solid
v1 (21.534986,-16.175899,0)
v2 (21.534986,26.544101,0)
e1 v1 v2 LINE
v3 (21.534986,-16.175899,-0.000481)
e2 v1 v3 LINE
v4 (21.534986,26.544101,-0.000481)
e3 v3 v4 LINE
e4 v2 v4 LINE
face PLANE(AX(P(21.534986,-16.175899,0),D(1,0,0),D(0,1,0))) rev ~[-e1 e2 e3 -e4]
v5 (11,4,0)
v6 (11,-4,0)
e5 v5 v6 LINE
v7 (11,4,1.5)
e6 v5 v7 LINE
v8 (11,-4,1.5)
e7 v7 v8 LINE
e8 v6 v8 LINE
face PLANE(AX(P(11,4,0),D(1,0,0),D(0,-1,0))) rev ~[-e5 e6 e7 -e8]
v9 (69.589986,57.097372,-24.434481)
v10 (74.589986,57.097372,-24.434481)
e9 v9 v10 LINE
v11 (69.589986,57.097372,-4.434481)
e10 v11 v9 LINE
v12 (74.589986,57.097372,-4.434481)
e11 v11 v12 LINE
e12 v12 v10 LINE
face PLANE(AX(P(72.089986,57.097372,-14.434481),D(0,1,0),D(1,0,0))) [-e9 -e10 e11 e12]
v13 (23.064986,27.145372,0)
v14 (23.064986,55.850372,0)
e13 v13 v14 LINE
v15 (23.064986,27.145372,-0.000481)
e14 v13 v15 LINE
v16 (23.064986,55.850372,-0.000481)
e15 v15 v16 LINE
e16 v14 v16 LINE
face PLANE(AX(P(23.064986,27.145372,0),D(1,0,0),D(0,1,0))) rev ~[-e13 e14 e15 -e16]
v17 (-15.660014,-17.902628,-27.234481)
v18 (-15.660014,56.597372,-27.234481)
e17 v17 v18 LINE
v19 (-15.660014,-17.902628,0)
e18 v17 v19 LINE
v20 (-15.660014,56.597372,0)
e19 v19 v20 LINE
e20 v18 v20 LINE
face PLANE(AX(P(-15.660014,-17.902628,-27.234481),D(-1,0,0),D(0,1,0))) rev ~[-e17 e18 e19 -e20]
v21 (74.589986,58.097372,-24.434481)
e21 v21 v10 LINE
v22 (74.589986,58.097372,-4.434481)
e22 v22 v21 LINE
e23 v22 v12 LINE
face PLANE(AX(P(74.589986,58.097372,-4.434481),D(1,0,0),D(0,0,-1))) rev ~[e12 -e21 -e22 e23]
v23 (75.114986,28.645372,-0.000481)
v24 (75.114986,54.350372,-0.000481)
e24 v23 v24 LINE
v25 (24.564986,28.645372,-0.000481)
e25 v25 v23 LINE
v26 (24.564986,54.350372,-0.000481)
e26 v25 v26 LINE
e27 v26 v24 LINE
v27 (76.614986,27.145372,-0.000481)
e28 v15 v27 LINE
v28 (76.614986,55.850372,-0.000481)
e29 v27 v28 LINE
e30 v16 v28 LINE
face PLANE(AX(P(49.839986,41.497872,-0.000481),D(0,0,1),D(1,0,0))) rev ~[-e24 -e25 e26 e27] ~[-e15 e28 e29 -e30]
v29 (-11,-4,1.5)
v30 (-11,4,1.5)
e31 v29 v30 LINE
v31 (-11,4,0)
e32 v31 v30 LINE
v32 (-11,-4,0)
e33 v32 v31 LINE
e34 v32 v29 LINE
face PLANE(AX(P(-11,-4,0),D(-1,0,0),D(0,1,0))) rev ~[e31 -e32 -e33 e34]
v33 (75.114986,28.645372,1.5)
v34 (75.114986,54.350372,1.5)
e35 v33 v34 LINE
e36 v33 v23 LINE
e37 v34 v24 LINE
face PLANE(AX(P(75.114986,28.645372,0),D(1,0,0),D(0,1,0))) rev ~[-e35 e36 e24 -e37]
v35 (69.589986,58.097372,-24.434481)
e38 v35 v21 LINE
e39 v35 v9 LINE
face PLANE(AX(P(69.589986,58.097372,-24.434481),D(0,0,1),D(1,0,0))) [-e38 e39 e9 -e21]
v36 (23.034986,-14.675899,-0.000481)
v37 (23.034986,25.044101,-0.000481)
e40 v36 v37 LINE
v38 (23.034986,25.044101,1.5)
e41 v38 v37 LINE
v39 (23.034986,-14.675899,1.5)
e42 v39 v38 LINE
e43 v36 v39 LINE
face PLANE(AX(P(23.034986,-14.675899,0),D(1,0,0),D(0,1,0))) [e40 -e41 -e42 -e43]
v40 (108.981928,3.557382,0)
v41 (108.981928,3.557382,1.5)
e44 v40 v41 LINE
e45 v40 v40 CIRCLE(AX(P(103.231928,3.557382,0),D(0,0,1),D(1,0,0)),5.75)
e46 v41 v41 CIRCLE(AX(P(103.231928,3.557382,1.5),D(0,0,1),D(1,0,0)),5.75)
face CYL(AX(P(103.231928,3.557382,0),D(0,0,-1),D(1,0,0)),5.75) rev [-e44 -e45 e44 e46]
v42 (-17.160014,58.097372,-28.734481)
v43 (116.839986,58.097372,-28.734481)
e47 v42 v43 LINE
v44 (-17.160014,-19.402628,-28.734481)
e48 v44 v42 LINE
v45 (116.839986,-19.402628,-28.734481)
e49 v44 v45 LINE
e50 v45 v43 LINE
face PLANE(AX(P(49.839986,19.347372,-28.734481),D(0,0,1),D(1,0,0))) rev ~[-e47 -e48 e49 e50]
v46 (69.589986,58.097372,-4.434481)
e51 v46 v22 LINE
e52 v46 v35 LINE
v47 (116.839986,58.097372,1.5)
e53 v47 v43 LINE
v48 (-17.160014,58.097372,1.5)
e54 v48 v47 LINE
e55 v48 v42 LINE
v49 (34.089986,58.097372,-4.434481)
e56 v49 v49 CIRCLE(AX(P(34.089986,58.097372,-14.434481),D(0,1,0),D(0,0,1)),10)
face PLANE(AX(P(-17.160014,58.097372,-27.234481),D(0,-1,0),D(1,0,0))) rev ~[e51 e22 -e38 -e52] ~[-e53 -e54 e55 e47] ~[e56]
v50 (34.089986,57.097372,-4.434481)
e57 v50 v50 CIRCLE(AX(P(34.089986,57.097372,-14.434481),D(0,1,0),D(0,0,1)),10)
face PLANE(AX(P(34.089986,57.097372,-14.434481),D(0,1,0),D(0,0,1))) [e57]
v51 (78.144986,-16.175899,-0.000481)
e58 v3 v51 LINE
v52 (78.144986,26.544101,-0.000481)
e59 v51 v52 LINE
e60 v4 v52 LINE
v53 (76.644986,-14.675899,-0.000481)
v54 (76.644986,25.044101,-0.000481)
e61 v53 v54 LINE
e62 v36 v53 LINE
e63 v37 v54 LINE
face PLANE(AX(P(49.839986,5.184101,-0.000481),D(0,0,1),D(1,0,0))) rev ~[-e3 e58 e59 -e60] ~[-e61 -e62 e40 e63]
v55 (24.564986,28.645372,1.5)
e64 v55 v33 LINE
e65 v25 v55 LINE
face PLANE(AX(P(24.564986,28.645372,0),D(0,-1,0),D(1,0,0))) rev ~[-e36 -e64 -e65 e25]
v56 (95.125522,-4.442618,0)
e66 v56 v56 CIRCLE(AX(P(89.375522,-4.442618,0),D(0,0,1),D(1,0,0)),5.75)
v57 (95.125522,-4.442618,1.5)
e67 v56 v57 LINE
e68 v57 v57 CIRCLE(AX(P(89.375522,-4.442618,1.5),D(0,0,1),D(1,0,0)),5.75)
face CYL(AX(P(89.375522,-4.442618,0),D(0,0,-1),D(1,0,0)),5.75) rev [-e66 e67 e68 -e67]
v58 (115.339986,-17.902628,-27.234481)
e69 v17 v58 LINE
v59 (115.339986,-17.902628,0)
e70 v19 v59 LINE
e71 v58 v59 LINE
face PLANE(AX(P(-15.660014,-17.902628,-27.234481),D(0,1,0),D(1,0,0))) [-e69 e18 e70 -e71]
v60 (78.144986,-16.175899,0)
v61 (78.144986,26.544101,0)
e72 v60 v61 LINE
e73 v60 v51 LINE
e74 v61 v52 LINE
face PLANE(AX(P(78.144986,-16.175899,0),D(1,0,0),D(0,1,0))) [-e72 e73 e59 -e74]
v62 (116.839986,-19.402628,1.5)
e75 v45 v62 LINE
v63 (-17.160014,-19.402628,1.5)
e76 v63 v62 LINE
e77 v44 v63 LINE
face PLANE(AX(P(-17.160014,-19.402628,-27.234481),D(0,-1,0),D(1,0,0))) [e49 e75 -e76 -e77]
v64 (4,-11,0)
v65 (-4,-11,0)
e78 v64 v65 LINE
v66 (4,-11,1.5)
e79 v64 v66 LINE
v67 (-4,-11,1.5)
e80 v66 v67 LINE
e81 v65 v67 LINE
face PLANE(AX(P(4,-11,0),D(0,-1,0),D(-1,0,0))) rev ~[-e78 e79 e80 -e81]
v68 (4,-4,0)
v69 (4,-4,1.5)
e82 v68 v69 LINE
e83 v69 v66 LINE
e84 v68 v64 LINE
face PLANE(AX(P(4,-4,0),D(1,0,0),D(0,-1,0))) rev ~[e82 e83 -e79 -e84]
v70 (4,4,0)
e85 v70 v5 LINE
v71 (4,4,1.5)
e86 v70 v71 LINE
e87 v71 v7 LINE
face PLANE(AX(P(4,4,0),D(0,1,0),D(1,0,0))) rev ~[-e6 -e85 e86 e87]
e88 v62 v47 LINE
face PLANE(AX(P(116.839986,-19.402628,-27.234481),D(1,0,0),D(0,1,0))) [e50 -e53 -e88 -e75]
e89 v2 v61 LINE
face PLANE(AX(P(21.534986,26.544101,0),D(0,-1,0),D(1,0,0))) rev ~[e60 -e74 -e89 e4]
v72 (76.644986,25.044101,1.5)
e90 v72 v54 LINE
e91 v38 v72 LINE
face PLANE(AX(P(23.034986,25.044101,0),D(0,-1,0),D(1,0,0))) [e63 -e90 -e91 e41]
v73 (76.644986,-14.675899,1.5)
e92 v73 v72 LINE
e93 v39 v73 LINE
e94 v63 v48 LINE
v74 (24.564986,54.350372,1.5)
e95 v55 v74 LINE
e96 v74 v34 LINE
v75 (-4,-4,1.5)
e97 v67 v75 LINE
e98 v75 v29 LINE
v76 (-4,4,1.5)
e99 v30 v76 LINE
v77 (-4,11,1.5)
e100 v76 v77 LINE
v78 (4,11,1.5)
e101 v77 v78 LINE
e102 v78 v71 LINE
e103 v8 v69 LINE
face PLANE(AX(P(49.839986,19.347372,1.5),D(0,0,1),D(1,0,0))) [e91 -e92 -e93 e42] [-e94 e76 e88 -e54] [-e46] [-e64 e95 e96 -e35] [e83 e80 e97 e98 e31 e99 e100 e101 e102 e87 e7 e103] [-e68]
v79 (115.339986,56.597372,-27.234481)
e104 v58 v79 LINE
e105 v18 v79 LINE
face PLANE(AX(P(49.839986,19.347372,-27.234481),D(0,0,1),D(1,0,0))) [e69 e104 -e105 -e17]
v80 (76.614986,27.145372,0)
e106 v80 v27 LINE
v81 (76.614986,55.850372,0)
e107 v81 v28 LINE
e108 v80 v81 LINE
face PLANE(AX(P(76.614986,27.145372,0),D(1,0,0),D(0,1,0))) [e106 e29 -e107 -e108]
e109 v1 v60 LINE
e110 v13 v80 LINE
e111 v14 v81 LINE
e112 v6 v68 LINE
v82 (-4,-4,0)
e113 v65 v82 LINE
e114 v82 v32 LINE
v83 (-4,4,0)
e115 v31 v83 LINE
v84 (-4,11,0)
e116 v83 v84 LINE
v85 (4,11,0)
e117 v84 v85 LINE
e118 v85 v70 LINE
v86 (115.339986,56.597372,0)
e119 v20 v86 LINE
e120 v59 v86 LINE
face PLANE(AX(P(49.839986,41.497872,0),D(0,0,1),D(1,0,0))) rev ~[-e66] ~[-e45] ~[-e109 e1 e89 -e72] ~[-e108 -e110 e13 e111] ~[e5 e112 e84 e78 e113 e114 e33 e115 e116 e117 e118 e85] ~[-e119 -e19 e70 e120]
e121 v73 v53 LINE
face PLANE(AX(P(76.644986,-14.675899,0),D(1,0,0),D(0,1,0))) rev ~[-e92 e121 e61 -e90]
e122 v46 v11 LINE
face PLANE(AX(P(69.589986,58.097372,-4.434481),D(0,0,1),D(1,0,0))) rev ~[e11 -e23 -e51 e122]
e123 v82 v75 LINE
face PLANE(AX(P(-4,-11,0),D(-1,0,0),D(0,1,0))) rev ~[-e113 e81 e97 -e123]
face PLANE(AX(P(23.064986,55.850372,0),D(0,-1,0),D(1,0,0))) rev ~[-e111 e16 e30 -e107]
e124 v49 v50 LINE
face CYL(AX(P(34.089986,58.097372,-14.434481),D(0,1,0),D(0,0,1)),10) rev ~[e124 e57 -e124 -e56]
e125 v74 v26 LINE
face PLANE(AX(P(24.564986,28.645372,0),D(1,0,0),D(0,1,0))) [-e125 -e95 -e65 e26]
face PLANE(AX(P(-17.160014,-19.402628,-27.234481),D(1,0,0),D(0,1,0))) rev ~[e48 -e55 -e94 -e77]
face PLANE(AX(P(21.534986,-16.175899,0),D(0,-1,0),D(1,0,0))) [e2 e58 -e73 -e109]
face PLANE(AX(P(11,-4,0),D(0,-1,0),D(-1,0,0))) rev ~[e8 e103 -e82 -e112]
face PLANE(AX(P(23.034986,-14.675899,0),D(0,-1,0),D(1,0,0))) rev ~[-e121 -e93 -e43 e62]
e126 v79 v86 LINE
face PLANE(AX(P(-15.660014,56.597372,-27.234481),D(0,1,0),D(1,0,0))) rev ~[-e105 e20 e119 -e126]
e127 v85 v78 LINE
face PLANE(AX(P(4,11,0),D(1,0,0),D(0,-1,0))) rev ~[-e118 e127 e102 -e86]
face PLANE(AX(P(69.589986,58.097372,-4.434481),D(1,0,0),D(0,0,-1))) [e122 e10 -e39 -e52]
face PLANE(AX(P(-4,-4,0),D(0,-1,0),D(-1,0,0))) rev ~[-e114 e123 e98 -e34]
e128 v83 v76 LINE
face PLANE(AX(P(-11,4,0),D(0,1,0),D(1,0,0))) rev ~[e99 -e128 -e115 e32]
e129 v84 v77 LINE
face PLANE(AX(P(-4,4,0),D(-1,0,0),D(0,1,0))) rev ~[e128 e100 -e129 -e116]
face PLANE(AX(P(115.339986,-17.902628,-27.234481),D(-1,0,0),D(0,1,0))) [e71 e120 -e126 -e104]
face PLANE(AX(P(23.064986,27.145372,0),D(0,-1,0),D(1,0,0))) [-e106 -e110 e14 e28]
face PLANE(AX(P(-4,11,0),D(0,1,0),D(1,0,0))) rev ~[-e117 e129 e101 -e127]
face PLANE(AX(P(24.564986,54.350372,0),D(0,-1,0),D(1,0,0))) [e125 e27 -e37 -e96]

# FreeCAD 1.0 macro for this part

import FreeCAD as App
import Part
import Sketcher

V = App.Vector
Q = App.Units.Quantity


def add_polygon(sketch, points):
    """Adds a closed chain of lines whose ends are joined by coincident constraints."""
    first, n = sketch.GeometryCount, len(points)
    for a, b in zip(points, points[1:] + points[:1]):
        sketch.addGeometry(Part.LineSegment(App.Vector(*a, 0), App.Vector(*b, 0)), False)
    for i in range(n):
        sketch.addConstraint(Sketcher.Constraint("Coincident", first + i, 2, first + (i + 1) % n, 1))

doc = App.newDocument("Part")
body = doc.addObject("PartDesign::Body", "Body")

# Sketch on XY plane
sketch1 = doc.addObject("Sketcher::SketchObject", "Sketch")
body.addObject(sketch1)
sketch1.AttachmentSupport = (doc.XY_Plane, [""])
sketch1.MapMode = "FlatFace"
add_polygon(sketch1, [(-16, 57), (-16, -18), (115, -18), (115, 57)])  # lines 0-3
add_polygon(sketch1, [(4, -4), (4, -11), (-4, -11), (-4, -4), (-11, -4), (-11, 4), (-4, 4), (-4, 11), (4, 11), (4, 4), (11, 4), (11, -4)])  # lines 4-15
sketch1.addGeometry(Part.Circle(V(89, -4, 0), V(0, 0, 1), 6), False)  # 16
sketch1.addGeometry(Part.Circle(V(103, 4, 0), V(0, 0, 1), 6), False)  # 17
add_polygon(sketch1, [(77, -15), (23, -15), (23, 25), (77, 25)])  # lines 18-21
add_polygon(sketch1, [(75, 29), (25, 29), (25, 54), (75, 54)])  # lines 22-25
sketch1.addConstraint([
    Sketcher.Constraint("Vertical", 0),
    Sketcher.Constraint("Horizontal", 1),
    Sketcher.Constraint("Vertical", 2),
    Sketcher.Constraint("Horizontal", 3),
    Sketcher.Constraint("Vertical", 4),
    Sketcher.Constraint("Horizontal", 5),
    Sketcher.Constraint("Vertical", 6),
    Sketcher.Constraint("Horizontal", 7),
    Sketcher.Constraint("Vertical", 8),
    Sketcher.Constraint("Horizontal", 9),
    Sketcher.Constraint("Vertical", 10),
    Sketcher.Constraint("Horizontal", 11),
    Sketcher.Constraint("Vertical", 12),
    Sketcher.Constraint("Horizontal", 13),
    Sketcher.Constraint("Vertical", 14),
    Sketcher.Constraint("Horizontal", 15),
    Sketcher.Constraint("Horizontal", 18),
    Sketcher.Constraint("Vertical", 19),
    Sketcher.Constraint("Horizontal", 20),
    Sketcher.Constraint("Vertical", 21),
    Sketcher.Constraint("Horizontal", 22),
    Sketcher.Constraint("Vertical", 23),
    Sketcher.Constraint("Horizontal", 24),
    Sketcher.Constraint("Vertical", 25),
    Sketcher.Constraint("Equal", 16, 17),
    Sketcher.Constraint("Symmetric", 4, 2, 10, 2, -1, 1),
    Sketcher.Constraint("Symmetric", 6, 2, 12, 2, -1, 1),
    Sketcher.Constraint("Symmetric", 8, 2, 14, 2, -1, 1),
    Sketcher.Constraint("Symmetric", 9, 2, 12, 2, -2),
    Sketcher.Constraint("Equal", 15, 4),
    Sketcher.Constraint("Equal", 11, 8),
    Sketcher.Constraint("Diameter", 16, Q("11.5 mm")),
    Sketcher.Constraint("DistanceX", 1, 1, 1, 2, Q("131 mm")),
    Sketcher.Constraint("DistanceX", 5, 2, 5, 1, Q("8 mm")),
    Sketcher.Constraint("DistanceX", 7, 2, 7, 1, Q("7 mm")),
    Sketcher.Constraint("DistanceY", 0, 2, 0, 1, Q("74.5 mm")),
    Sketcher.Constraint("DistanceY", 16, 3, 17, 3, Q("8 mm")),
    Sketcher.Constraint("DistanceX", 18, 2, 18, 1, Q("53.61 mm")),
    Sketcher.Constraint("DistanceX", 22, 2, 22, 1, Q("50.55 mm")),
    Sketcher.Constraint("DistanceY", 19, 1, 19, 2, Q("39.72 mm")),
    Sketcher.Constraint("DistanceY", 23, 1, 23, 2, Q("25.705 mm")),
    Sketcher.Constraint("DistanceX", 19, 2, 22, 2, Q("1.53 mm")),
    Sketcher.Constraint("DistanceX", 20, 2, 2, 2, Q("38.695 mm")),
    Sketcher.Constraint("DistanceY", 23, 2, 3, 2, Q("2.247 mm")),
    Sketcher.Constraint("DistanceY", 18, 2, -1, 1, Q("14.675899 mm")),
    Sketcher.Constraint("DistanceX", -1, 1, 16, 3, Q("89.375522 mm")),
    Sketcher.Constraint("DistanceX", -1, 1, 17, 3, Q("103.231928 mm")),
    Sketcher.Constraint("DistanceY", 0, 2, 16, 3, Q("13.46001 mm")),
    Sketcher.Constraint("DistanceX", 0, 2, 17, 3, Q("118.891942 mm")),
    Sketcher.Constraint("DistanceY", 16, 3, 20, 2, Q("29.486719 mm")),
])
pad1 = doc.addObject("PartDesign::Pad", "Pad")
body.addObject(pad1)
pad1.Profile = sketch1
pad1.Length = 1.5

# Sketch on XY plane
sketch2 = doc.addObject("Sketcher::SketchObject", "Sketch001")
body.addObject(sketch2)
sketch2.AttachmentSupport = (doc.XY_Plane, [""])
sketch2.MapMode = "FlatFace"
add_polygon(sketch2, [(22, 27), (22, -16), (78, -16), (78, 27)])  # lines 0-3
add_polygon(sketch2, [(77, -15), (23, -15), (23, 25), (77, 25)])  # lines 4-7
sketch2.addConstraint([
    Sketcher.Constraint("Vertical", 0),
    Sketcher.Constraint("Horizontal", 1),
    Sketcher.Constraint("Vertical", 2),
    Sketcher.Constraint("Horizontal", 3),
    Sketcher.Constraint("Horizontal", 4),
    Sketcher.Constraint("Vertical", 5),
    Sketcher.Constraint("Horizontal", 6),
    Sketcher.Constraint("Vertical", 7),
    Sketcher.Constraint("DistanceX", 1, 1, 1, 2, Q("56.61 mm")),
    Sketcher.Constraint("DistanceX", 4, 2, 4, 1, Q("53.61 mm")),
    Sketcher.Constraint("DistanceY", 0, 2, 0, 1, Q("42.72 mm")),
    Sketcher.Constraint("DistanceY", 5, 1, 5, 2, Q("39.72 mm")),
    Sketcher.Constraint("DistanceX", 0, 2, 4, 2, Q("1.5 mm")),
    Sketcher.Constraint("DistanceY", 0, 2, 4, 2, Q("1.5 mm")),
    Sketcher.Constraint("DistanceY", 0, 2, -1, 1, Q("16.175899 mm")),
    Sketcher.Constraint("DistanceX", -1, 1, 0, 2, Q("21.534986 mm")),
])
pad2 = doc.addObject("PartDesign::Pad", "Pad001")
body.addObject(pad2)
pad2.Profile = sketch2
pad2.Length = 0.000481
pad2.Reversed = True

# Sketch on XY plane
sketch3 = doc.addObject("Sketcher::SketchObject", "Sketch002")
body.addObject(sketch3)
sketch3.AttachmentSupport = (doc.XY_Plane, [""])
sketch3.MapMode = "FlatFace"
add_polygon(sketch3, [(23, 56), (23, 27), (77, 27), (77, 56)])  # lines 0-3
add_polygon(sketch3, [(75, 29), (25, 29), (25, 54), (75, 54)])  # lines 4-7
sketch3.addConstraint([
    Sketcher.Constraint("Vertical", 0),
    Sketcher.Constraint("Horizontal", 1),
    Sketcher.Constraint("Vertical", 2),
    Sketcher.Constraint("Horizontal", 3),
    Sketcher.Constraint("Horizontal", 4),
    Sketcher.Constraint("Vertical", 5),
    Sketcher.Constraint("Horizontal", 6),
    Sketcher.Constraint("Vertical", 7),
    Sketcher.Constraint("DistanceX", 1, 1, 1, 2, Q("53.55 mm")),
    Sketcher.Constraint("DistanceX", 4, 2, 4, 1, Q("50.55 mm")),
    Sketcher.Constraint("DistanceX", 0, 2, 4, 2, Q("1.5 mm")),
    Sketcher.Constraint("DistanceY", 0, 2, 4, 2, Q("1.5 mm")),
    Sketcher.Constraint("DistanceY", 5, 2, 3, 2, Q("1.5 mm")),
    Sketcher.Constraint("DistanceY", 0, 2, 0, 1, Q("28.705 mm")),
    Sketcher.Constraint("DistanceX", -1, 1, 0, 2, Q("23.064986 mm")),
    Sketcher.Constraint("DistanceY", -1, 1, 0, 2, Q("27.145372 mm")),
])
pad3 = doc.addObject("PartDesign::Pad", "Pad002")
body.addObject(pad3)
pad3.Profile = sketch3
pad3.Length = 0.000481
pad3.Reversed = True

# Sketch on XY plane
sketch4 = doc.addObject("Sketcher::SketchObject", "Sketch003")
body.addObject(sketch4)
sketch4.AttachmentSupport = (doc.XY_Plane, [""])
sketch4.MapMode = "FlatFace"
sketch4.AttachmentOffset = App.Placement(V(0, 0, -27.234481), App.Rotation())
add_polygon(sketch4, [(-17, 58), (-17, -19), (117, -19), (117, 58)])  # lines 0-3
add_polygon(sketch4, [(115, -18), (-16, -18), (-16, 57), (115, 57)])  # lines 4-7
sketch4.addConstraint([
    Sketcher.Constraint("Vertical", 0),
    Sketcher.Constraint("Horizontal", 1),
    Sketcher.Constraint("Vertical", 2),
    Sketcher.Constraint("Horizontal", 3),
    Sketcher.Constraint("Horizontal", 4),
    Sketcher.Constraint("Vertical", 5),
    Sketcher.Constraint("Horizontal", 6),
    Sketcher.Constraint("Vertical", 7),
    Sketcher.Constraint("DistanceX", 1, 1, 1, 2, Q("134 mm")),
    Sketcher.Constraint("DistanceX", 4, 2, 4, 1, Q("131 mm")),
    Sketcher.Constraint("DistanceY", 0, 2, 0, 1, Q("77.5 mm")),
    Sketcher.Constraint("DistanceY", 5, 1, 5, 2, Q("74.5 mm")),
    Sketcher.Constraint("DistanceY", 4, 2, 3, 2, Q("76 mm")),
    Sketcher.Constraint("DistanceX", 0, 2, 4, 2, Q("1.5 mm")),
    Sketcher.Constraint("DistanceX", 0, 2, -1, 1, Q("17.160014 mm")),
    Sketcher.Constraint("DistanceY", 0, 2, -1, 1, Q("19.402628 mm")),
])
pad4 = doc.addObject("PartDesign::Pad", "Pad003")
body.addObject(pad4)
pad4.Profile = sketch4
pad4.Length = 28.734481

# Sketch on XY plane
sketch5 = doc.addObject("Sketcher::SketchObject", "Sketch004")
body.addObject(sketch5)
sketch5.AttachmentSupport = (doc.XY_Plane, [""])
sketch5.MapMode = "FlatFace"
sketch5.AttachmentOffset = App.Placement(V(0, 0, -27.234481), App.Rotation())
add_polygon(sketch5, [(-17, 58), (-17, -19), (117, -19), (117, 58)])  # lines 0-3
sketch5.addConstraint([
    Sketcher.Constraint("Vertical", 0),
    Sketcher.Constraint("Horizontal", 1),
    Sketcher.Constraint("Vertical", 2),
    Sketcher.Constraint("Horizontal", 3),
    Sketcher.Constraint("DistanceX", 1, 1, 1, 2, Q("134 mm")),
    Sketcher.Constraint("DistanceY", 0, 2, 0, 1, Q("77.5 mm")),
    Sketcher.Constraint("DistanceX", 0, 2, -1, 1, Q("17.160014 mm")),
    Sketcher.Constraint("DistanceY", 0, 2, -1, 1, Q("19.402628 mm")),
])
pad5 = doc.addObject("PartDesign::Pad", "Pad004")
body.addObject(pad5)
pad5.Profile = sketch5
pad5.Length = 1.5
pad5.Reversed = True

# Sketch on XZ plane
sketch6 = doc.addObject("Sketcher::SketchObject", "Sketch005")
body.addObject(sketch6)
sketch6.AttachmentSupport = (doc.XZ_Plane, [""])
sketch6.MapMode = "FlatFace"
sketch6.AttachmentOffset = App.Placement(V(0, 0, -58.097372), App.Rotation())
sketch6.addGeometry(Part.Circle(V(34, -14, 0), V(0, 0, 1), 10), False)  # 0
add_polygon(sketch6, [(70, -24), (70, -4), (75, -4), (75, -24)])  # lines 1-4
sketch6.addConstraint([
    Sketcher.Constraint("Vertical", 1),
    Sketcher.Constraint("Horizontal", 2),
    Sketcher.Constraint("Vertical", 3),
    Sketcher.Constraint("Horizontal", 4),
    Sketcher.Constraint("Diameter", 0, Q("20 mm")),
    Sketcher.Constraint("DistanceX", 2, 1, 2, 2, Q("5 mm")),
    Sketcher.Constraint("DistanceY", 1, 1, 1, 2, Q("20 mm")),
    Sketcher.Constraint("DistanceY", 0, 3, 1, 2, Q("10 mm")),
    Sketcher.Constraint("DistanceX", 0, 3, 1, 2, Q("35.5 mm")),
    Sketcher.Constraint("DistanceY", 0, 3, -1, 1, Q("14.434481 mm")),
    Sketcher.Constraint("DistanceX", -1, 1, 0, 3, Q("34.089986 mm")),
])
pocket1 = doc.addObject("PartDesign::Pocket", "Pocket")
body.addObject(pocket1)
pocket1.Profile = sketch6
pocket1.Length = 1
pocket1.Reversed = True

doc.recompute()
